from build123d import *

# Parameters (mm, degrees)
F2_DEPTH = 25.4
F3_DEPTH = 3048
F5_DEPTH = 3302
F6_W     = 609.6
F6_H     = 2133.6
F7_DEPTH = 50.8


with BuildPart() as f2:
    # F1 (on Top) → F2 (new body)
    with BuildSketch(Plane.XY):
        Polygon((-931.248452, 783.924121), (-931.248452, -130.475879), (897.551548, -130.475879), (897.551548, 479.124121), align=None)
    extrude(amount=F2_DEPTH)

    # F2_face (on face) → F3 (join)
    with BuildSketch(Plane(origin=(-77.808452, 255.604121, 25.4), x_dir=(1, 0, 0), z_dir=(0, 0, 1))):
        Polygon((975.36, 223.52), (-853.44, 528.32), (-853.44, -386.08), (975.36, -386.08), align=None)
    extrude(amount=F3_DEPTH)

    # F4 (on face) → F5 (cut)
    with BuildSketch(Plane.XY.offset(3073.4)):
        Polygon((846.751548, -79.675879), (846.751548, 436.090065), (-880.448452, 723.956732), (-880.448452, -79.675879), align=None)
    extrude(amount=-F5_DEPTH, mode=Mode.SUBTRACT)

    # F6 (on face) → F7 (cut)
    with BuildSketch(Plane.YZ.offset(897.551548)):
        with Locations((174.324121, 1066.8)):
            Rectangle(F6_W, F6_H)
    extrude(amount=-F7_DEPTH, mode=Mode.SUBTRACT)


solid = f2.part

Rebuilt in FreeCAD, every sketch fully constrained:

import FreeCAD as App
import Part
import Sketcher
from FreeCAD import Vector
Q = App.Units.Quantity


def add_polygon(sketch, points):
    """Adds a closed chain of lines whose ends are joined by coincident constraints."""
    first, n = sketch.GeometryCount, len(points)
    for a, b in zip(points, points[1:] + points[:1]):
        sketch.addGeometry(Part.LineSegment(App.Vector(*a, 0), App.Vector(*b, 0)), False)
    for i in range(n):
        sketch.addConstraint(Sketcher.Constraint("Coincident", first + i, 2, first + (i + 1) % n, 1))

doc = App.newDocument("Part")
body = doc.addObject("PartDesign::Body", "Body")

# Sketch on XY plane
sketch1 = doc.addObject("Sketcher::SketchObject", "Sketch")
body.addObject(sketch1)
sketch1.AttachmentSupport = (doc.XY_Plane, [""])
sketch1.MapMode = "FlatFace"
add_polygon(sketch1, [(-931, 784), (-931, -130), (898, -130), (898, 479)])  # lines 0-3
sketch1.addConstraint([
    Sketcher.Constraint("Vertical", 0),
    Sketcher.Constraint("Horizontal", 1),
    Sketcher.Constraint("Vertical", 2),
    Sketcher.Constraint("DistanceX", 1, 1, 1, 2, Q("72 in")),
    Sketcher.Constraint("DistanceY", 0, 2, 0, 1, Q("36 in")),
    Sketcher.Constraint("DistanceY", 2, 1, 2, 2, Q("24 in")),
    Sketcher.Constraint("DistanceX", 0, 2, -1, 1, Q("931.248452 mm")),
    Sketcher.Constraint("DistanceY", 0, 2, -1, 1, Q("130.475879 mm")),
])
pad1 = doc.addObject("PartDesign::Pad", "Pad")
body.addObject(pad1)
pad1.Profile = sketch1
pad1.Length = Q("1 in")

# Sketch on XY plane
sketch2 = doc.addObject("Sketcher::SketchObject", "Sketch001")
body.addObject(sketch2)
sketch2.AttachmentSupport = (doc.XY_Plane, [""])
sketch2.MapMode = "FlatFace"
sketch2.AttachmentOffset = App.Placement(Vector(0, 0, 1 * 25.4), App.Rotation())
add_polygon(sketch2, [(898, 479), (-931, 784), (-931, -130), (898, -130)])  # lines 0-3
sketch2.addConstraint([
    Sketcher.Constraint("Vertical", 1),
    Sketcher.Constraint("Horizontal", 2),
    Sketcher.Constraint("Vertical", 3),
    Sketcher.Constraint("DistanceX", 2, 1, 2, 2, Q("72 in")),
    Sketcher.Constraint("DistanceY", 1, 2, 1, 1, Q("36 in")),
    Sketcher.Constraint("DistanceY", 3, 1, 3, 2, Q("24 in")),
    Sketcher.Constraint("DistanceX", 0, 2, -1, 1, Q("931.248452 mm")),
    Sketcher.Constraint("DistanceY", -1, 1, 0, 2, Q("783.924121 mm")),
])
pad2 = doc.addObject("PartDesign::Pad", "Pad001")
body.addObject(pad2)
pad2.Profile = sketch2
pad2.Length = Q("120 in")

# Sketch on XY plane
sketch3 = doc.addObject("Sketcher::SketchObject", "Sketch002")
body.addObject(sketch3)
sketch3.AttachmentSupport = (doc.XY_Plane, [""])
sketch3.MapMode = "FlatFace"
sketch3.AttachmentOffset = App.Placement(Vector(0, 0, 121 * 25.4), App.Rotation())
add_polygon(sketch3, [(847, -80), (847, 436), (-880, 724), (-880, -80)])  # lines 0-3
sketch3.addConstraint([
    Sketcher.Constraint("Vertical", 0),
    Sketcher.Constraint("Vertical", 2),
    Sketcher.Constraint("Horizontal", 3),
    Sketcher.Constraint("DistanceX", 3, 1, 3, 2, Q("68 in")),
    Sketcher.Constraint("DistanceY", -1, 1, 0, 2, Q("17.1689002 in")),
    Sketcher.Constraint("DistanceY", 2, 2, 2, 1, Q("803.632611 mm")),
    Sketcher.Constraint("DistanceY", 0, 1, 0, 2, Q("515.765944 mm")),
    Sketcher.Constraint("DistanceX", -1, 1, 0, 2, Q("846.751548 mm")),
])
pocket1 = doc.addObject("PartDesign::Pocket", "Pocket")
body.addObject(pocket1)
pocket1.Profile = sketch3
pocket1.Length = Q("130 in")

# Sketch on YZ plane
sketch4 = doc.addObject("Sketcher::SketchObject", "Sketch003")
body.addObject(sketch4)
sketch4.AttachmentSupport = (doc.YZ_Plane, [""])
sketch4.MapMode = "FlatFace"
sketch4.AttachmentOffset = App.Placement(Vector(0, 0, 897.551548), App.Rotation())
add_polygon(sketch4, [(-130, 2134), (-130, 0), (479, 0), (479, 2134)])  # lines 0-3
sketch4.addConstraint([
    Sketcher.Constraint("Vertical", 0),
    Sketcher.Constraint("Horizontal", 1),
    Sketcher.Constraint("Vertical", 2),
    Sketcher.Constraint("Horizontal", 3),
    Sketcher.Constraint("PointOnObject", 0, 2, -1),
    Sketcher.Constraint("DistanceX", 1, 1, 1, 2, Q("24 in")),
    Sketcher.Constraint("DistanceY", 0, 2, 0, 1, Q("84 in")),
    Sketcher.Constraint("DistanceX", 0, 2, -1, 1, Q("130.475879 mm")),
])
pocket2 = doc.addObject("PartDesign::Pocket", "Pocket001")
body.addObject(pocket2)
pocket2.Profile = sketch4
pocket2.Length = Q("2 in")

doc.recompute()
